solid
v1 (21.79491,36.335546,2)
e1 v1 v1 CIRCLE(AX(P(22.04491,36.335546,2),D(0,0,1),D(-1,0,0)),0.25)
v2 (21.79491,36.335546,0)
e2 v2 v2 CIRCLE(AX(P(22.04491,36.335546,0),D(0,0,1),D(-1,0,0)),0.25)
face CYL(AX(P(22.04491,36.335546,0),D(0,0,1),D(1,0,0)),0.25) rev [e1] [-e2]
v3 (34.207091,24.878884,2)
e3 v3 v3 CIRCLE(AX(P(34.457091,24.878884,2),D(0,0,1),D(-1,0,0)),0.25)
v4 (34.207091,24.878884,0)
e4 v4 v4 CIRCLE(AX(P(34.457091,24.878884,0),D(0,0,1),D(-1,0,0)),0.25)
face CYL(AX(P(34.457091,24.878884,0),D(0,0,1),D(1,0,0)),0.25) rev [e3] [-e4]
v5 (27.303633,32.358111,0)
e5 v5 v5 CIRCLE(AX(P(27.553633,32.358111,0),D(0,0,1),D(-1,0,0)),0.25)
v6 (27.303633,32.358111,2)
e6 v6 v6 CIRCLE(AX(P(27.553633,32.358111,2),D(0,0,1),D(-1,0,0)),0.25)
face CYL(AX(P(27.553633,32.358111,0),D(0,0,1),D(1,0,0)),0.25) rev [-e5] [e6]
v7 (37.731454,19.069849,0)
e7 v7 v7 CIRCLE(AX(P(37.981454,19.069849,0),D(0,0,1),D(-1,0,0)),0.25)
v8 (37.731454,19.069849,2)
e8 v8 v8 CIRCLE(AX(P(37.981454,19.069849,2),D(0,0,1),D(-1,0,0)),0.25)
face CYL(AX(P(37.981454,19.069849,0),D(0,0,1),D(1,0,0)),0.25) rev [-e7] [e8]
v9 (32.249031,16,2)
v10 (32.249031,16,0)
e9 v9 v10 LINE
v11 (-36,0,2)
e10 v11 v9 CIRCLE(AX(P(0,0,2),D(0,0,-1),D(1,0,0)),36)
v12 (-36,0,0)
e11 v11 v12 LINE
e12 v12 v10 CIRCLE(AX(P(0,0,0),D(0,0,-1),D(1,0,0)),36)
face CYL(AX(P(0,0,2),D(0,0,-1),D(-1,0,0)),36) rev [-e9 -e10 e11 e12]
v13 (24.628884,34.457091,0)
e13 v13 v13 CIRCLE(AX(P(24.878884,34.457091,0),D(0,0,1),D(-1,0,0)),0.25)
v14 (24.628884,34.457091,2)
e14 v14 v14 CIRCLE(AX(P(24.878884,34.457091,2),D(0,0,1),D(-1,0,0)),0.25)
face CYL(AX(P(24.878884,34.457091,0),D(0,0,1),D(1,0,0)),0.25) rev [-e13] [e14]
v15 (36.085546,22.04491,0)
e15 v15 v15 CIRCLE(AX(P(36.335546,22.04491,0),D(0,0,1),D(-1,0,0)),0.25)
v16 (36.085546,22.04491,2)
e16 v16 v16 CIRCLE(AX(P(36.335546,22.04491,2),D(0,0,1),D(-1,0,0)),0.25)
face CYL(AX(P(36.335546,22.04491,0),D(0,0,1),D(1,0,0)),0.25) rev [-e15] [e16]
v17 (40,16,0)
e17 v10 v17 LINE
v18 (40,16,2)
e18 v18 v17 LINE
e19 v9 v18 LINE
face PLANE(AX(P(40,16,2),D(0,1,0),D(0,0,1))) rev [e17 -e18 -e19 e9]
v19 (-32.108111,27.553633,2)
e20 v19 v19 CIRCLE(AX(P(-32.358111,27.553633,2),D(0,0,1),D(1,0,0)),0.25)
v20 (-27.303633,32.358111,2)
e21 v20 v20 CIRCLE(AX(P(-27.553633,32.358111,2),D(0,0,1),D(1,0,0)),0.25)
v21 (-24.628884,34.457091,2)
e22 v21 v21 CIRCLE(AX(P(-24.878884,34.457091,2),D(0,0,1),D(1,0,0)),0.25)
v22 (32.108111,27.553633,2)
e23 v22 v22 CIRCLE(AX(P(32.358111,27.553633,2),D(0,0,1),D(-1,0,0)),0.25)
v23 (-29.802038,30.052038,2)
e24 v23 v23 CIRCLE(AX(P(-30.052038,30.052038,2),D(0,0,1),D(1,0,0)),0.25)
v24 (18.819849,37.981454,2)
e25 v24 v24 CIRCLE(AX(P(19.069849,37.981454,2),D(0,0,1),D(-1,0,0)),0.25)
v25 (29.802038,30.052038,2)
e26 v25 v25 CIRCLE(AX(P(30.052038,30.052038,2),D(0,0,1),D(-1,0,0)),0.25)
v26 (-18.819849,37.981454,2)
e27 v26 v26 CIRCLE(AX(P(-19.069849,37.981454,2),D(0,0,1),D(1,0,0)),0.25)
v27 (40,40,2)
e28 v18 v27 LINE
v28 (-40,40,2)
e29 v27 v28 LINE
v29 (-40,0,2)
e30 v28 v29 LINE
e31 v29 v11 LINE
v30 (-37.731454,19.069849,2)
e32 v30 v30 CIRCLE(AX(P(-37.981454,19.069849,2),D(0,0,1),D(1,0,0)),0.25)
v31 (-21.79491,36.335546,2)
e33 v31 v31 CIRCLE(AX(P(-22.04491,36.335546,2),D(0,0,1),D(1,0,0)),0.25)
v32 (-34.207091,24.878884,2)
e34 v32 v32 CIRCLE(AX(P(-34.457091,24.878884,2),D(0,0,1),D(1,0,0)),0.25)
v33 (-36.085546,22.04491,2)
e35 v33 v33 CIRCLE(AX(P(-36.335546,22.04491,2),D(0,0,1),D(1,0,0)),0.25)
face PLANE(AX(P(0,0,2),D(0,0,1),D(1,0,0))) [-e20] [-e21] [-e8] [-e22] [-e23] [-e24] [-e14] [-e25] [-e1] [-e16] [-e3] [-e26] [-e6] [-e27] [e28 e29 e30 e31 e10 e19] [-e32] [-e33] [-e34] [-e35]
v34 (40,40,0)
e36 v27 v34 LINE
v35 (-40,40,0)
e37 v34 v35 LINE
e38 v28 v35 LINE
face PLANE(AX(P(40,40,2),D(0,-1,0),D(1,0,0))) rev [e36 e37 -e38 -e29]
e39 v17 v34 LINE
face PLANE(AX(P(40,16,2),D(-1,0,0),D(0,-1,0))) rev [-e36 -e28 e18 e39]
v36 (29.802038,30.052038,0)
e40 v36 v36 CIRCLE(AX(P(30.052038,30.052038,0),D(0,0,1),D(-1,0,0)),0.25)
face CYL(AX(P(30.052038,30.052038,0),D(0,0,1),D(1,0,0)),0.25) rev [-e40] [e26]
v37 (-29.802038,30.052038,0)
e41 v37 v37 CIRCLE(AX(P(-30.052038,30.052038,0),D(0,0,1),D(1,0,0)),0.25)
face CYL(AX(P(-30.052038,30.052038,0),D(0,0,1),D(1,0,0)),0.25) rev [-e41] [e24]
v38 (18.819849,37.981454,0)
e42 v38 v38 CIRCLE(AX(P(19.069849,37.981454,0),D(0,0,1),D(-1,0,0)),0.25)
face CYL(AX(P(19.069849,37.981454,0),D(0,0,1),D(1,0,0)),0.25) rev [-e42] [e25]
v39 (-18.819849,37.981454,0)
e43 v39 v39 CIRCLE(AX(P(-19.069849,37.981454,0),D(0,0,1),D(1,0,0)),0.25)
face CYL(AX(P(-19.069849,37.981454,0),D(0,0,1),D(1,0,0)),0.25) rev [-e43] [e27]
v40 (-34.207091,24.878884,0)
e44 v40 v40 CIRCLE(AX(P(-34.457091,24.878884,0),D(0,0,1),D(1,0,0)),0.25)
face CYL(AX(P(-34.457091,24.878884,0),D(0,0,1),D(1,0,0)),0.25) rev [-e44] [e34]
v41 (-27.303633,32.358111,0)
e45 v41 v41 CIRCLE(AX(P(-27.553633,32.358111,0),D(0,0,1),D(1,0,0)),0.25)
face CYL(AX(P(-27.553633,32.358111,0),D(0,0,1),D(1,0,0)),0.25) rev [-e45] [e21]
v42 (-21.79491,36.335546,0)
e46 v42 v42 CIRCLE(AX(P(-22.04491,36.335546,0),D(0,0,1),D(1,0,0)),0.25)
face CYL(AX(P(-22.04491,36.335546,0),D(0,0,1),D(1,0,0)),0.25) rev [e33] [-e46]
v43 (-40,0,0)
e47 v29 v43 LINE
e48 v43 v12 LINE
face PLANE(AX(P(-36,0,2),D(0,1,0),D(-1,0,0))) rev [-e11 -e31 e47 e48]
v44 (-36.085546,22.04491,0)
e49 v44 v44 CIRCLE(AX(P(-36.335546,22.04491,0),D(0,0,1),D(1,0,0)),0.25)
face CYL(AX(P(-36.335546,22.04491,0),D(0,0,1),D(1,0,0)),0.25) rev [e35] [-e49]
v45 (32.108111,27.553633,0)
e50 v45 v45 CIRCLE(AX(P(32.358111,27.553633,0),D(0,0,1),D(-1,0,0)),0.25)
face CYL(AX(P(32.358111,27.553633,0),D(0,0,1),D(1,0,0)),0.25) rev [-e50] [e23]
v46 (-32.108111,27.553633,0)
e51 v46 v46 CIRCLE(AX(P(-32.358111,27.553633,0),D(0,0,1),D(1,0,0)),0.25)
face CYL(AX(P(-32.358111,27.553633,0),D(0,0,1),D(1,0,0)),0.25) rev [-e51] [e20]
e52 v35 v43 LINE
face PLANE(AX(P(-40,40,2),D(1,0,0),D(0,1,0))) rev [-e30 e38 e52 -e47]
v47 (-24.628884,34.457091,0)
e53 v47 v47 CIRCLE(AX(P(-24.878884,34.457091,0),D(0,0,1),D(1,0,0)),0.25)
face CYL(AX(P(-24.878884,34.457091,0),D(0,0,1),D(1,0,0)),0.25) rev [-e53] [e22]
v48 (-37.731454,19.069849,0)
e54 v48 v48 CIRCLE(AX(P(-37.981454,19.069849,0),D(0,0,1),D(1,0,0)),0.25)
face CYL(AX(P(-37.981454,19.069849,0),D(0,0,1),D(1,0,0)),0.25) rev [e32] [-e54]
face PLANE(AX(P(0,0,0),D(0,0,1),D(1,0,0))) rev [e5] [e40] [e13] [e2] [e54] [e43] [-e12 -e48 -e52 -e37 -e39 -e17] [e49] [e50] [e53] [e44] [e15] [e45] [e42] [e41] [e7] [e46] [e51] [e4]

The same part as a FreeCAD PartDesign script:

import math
import FreeCAD as App
import Part
import Sketcher
Q = App.Units.Quantity

doc = App.newDocument("Part")
body = doc.addObject("PartDesign::Body", "Body")

# Sketch on XY plane
sketch1 = body.newObject("Sketcher::SketchObject", "Sketch")
sketch1.AttachmentSupport = (doc.getObject("XY_Plane"), [""])
sketch1.MapMode = "FlatFace"
sketch1.addGeometry([
    Part.LineSegment(App.Vector(40, 16, 0), App.Vector(40, 40, 0)),  # 0
    Part.LineSegment(App.Vector(40, 40, 0), App.Vector(-40, 40, 0)),  # 1
    Part.LineSegment(App.Vector(-40, 40, 0), App.Vector(-40, 0, 0)),  # 2
    Part.LineSegment(App.Vector(-40, 0, 0), App.Vector(-36, 0, 0)),  # 3
    Part.ArcOfCircle(Part.Circle(App.Vector(0, 0, 0), App.Vector(0, 0, 1), 36), math.radians(26), math.radians(180)),  # 4
    Part.LineSegment(App.Vector(32.2, 16, 0), App.Vector(40, 16, 0)),  # 5
], False)
sketch1.addConstraint([
    Sketcher.Constraint("Coincident", 0, 2, 1, 1),
    Sketcher.Constraint("Coincident", 1, 2, 2, 1),
    Sketcher.Constraint("Coincident", 2, 2, 3, 1),
    Sketcher.Constraint("Coincident", 3, 2, 4, 2),
    Sketcher.Constraint("Coincident", 4, 1, 5, 1),
    Sketcher.Constraint("Coincident", 5, 2, 0, 1),
    Sketcher.Constraint("Vertical", 0),
    Sketcher.Constraint("Horizontal", 1),
    Sketcher.Constraint("Vertical", 2),
    Sketcher.Constraint("Horizontal", 3),
    Sketcher.Constraint("Horizontal", 5),
    Sketcher.Constraint("Coincident", 4, 3, -1, 1),
    Sketcher.Constraint("PointOnObject", 2, 2, -1),
    Sketcher.Constraint("Radius", 4, Q("36 mm")),
    Sketcher.Constraint("DistanceX", 1, 2, 1, 1, Q("80 mm")),
    Sketcher.Constraint("DistanceX", 3, 1, 3, 2, Q("4 mm")),
    Sketcher.Constraint("DistanceY", 0, 1, 0, 2, Q("24 mm")),
    Sketcher.Constraint("DistanceY", 2, 2, 2, 1, Q("40 mm")),
])
pad1 = body.newObject("PartDesign::Pad", "Pad")
pad1.Profile = sketch1
pad1.Length = 2

# Sketch on XY plane
sketch2 = body.newObject("Sketcher::SketchObject", "Sketch001")
sketch2.AttachmentSupport = (doc.getObject("XY_Plane"), [""])
sketch2.MapMode = "FlatFace"
sketch2.AttachmentOffset = App.Placement(App.Vector(0, 0, 2), App.Rotation())
sketch2.addGeometry([
    Part.Circle(App.Vector(-37.98, 19.07, 0), App.Vector(0, 0, 1), 0.25),  # 0
    Part.Circle(App.Vector(-36.34, 22.04, 0), App.Vector(0, 0, 1), 0.25),  # 1
    Part.Circle(App.Vector(-34.46, 24.88, 0), App.Vector(0, 0, 1), 0.25),  # 2
    Part.Circle(App.Vector(-32.36, 27.55, 0), App.Vector(0, 0, 1), 0.25),  # 3
    Part.Circle(App.Vector(-30.05, 30.05, 0), App.Vector(0, 0, 1), 0.25),  # 4
    Part.Circle(App.Vector(-27.55, 32.36, 0), App.Vector(0, 0, 1), 0.25),  # 5
    Part.Circle(App.Vector(-24.88, 34.46, 0), App.Vector(0, 0, 1), 0.25),  # 6
    Part.Circle(App.Vector(-22.04, 36.34, 0), App.Vector(0, 0, 1), 0.25),  # 7
    Part.Circle(App.Vector(-19.07, 37.98, 0), App.Vector(0, 0, 1), 0.25),  # 8
    Part.Circle(App.Vector(19.07, 37.98, 0), App.Vector(0, 0, 1), 0.25),  # 9
    Part.Circle(App.Vector(22.04, 36.34, 0), App.Vector(0, 0, 1), 0.25),  # 10
    Part.Circle(App.Vector(24.88, 34.46, 0), App.Vector(0, 0, 1), 0.25),  # 11
    Part.Circle(App.Vector(27.55, 32.36, 0), App.Vector(0, 0, 1), 0.25),  # 12
    Part.Circle(App.Vector(30.05, 30.05, 0), App.Vector(0, 0, 1), 0.25),  # 13
    Part.Circle(App.Vector(32.36, 27.55, 0), App.Vector(0, 0, 1), 0.25),  # 14
    Part.Circle(App.Vector(34.46, 24.88, 0), App.Vector(0, 0, 1), 0.25),  # 15
    Part.Circle(App.Vector(36.34, 22.04, 0), App.Vector(0, 0, 1), 0.25),  # 16
    Part.Circle(App.Vector(37.98, 19.07, 0), App.Vector(0, 0, 1), 0.25),  # 17
], False)
sketch2.addConstraint([
    Sketcher.Constraint("Equal", 0, 1),
    Sketcher.Constraint("Equal", 1, 2),
    Sketcher.Constraint("Equal", 2, 3),
    Sketcher.Constraint("Equal", 3, 4),
    Sketcher.Constraint("Equal", 4, 5),
    Sketcher.Constraint("Equal", 5, 6),
    Sketcher.Constraint("Equal", 6, 7),
    Sketcher.Constraint("Equal", 7, 8),
    Sketcher.Constraint("Equal", 8, 9),
    Sketcher.Constraint("Equal", 9, 10),
    Sketcher.Constraint("Equal", 10, 11),
    Sketcher.Constraint("Equal", 11, 12),
    Sketcher.Constraint("Equal", 12, 13),
    Sketcher.Constraint("Equal", 13, 14),
    Sketcher.Constraint("Equal", 14, 15),
    Sketcher.Constraint("Equal", 15, 16),
    Sketcher.Constraint("Equal", 16, 17),
    Sketcher.Constraint("Symmetric", 8, 3, 9, 3, -2),
    Sketcher.Constraint("Symmetric", 7, 3, 10, 3, -2),
    Sketcher.Constraint("Symmetric", 6, 3, 11, 3, -2),
    Sketcher.Constraint("Symmetric", 5, 3, 12, 3, -2),
    Sketcher.Constraint("Symmetric", 4, 3, 13, 3, -2),
    Sketcher.Constraint("Symmetric", 3, 3, 14, 3, -2),
    Sketcher.Constraint("Symmetric", 2, 3, 15, 3, -2),
    Sketcher.Constraint("Symmetric", 1, 3, 16, 3, -2),
    Sketcher.Constraint("Symmetric", 0, 3, 17, 3, -2),
    Sketcher.Constraint("Diameter", 0, Q("0.5 mm")),
    Sketcher.Constraint("DistanceY", 1, 3, 5, 3, Q("10.3132 mm")),
    Sketcher.Constraint("DistanceX", 3, 3, 7, 3, Q("10.3132 mm")),
    Sketcher.Constraint("DistanceX", 8, 3, 9, 3, Q("38.139699 mm")),
    Sketcher.Constraint("DistanceY", -1, 1, 0, 3, Q("19.069849 mm")),
    Sketcher.Constraint("DistanceY", -1, 1, 1, 3, Q("22.04491 mm")),
    Sketcher.Constraint("DistanceX", 2, 3, -1, 1, Q("34.457091 mm")),
    Sketcher.Constraint("DistanceX", 3, 3, -1, 1, Q("32.358111 mm")),
    Sketcher.Constraint("DistanceX", 4, 3, -1, 1, Q("30.052038 mm")),
    Sketcher.Constraint("DistanceY", -1, 1, 4, 3, Q("30.052038 mm")),
    Sketcher.Constraint("DistanceY", -1, 1, 6, 3, Q("34.457091 mm")),
    Sketcher.Constraint("DistanceY", 2, 3, 3, 3, Q("2.674749 mm")),
    Sketcher.Constraint("DistanceX", 1, 3, 4, 3, Q("6.283508 mm")),
    Sketcher.Constraint("DistanceX", 2, 3, 5, 3, Q("6.903458 mm")),
    Sketcher.Constraint("DistanceX", 0, 3, 5, 3, Q("10.427821 mm")),
    Sketcher.Constraint("DistanceX", 5, 3, 6, 3, Q("2.674749 mm")),
    Sketcher.Constraint("DistanceY", 3, 3, 6, 3, Q("6.903458 mm")),
    Sketcher.Constraint("DistanceY", 4, 3, 7, 3, Q("6.283508 mm")),
    Sketcher.Constraint("DistanceY", 3, 3, 8, 3, Q("10.427821 mm")),
])
pocket1 = body.newObject("PartDesign::Pocket", "Pocket")
pocket1.Profile = sketch2
pocket1.Length = 2

doc.recompute()
